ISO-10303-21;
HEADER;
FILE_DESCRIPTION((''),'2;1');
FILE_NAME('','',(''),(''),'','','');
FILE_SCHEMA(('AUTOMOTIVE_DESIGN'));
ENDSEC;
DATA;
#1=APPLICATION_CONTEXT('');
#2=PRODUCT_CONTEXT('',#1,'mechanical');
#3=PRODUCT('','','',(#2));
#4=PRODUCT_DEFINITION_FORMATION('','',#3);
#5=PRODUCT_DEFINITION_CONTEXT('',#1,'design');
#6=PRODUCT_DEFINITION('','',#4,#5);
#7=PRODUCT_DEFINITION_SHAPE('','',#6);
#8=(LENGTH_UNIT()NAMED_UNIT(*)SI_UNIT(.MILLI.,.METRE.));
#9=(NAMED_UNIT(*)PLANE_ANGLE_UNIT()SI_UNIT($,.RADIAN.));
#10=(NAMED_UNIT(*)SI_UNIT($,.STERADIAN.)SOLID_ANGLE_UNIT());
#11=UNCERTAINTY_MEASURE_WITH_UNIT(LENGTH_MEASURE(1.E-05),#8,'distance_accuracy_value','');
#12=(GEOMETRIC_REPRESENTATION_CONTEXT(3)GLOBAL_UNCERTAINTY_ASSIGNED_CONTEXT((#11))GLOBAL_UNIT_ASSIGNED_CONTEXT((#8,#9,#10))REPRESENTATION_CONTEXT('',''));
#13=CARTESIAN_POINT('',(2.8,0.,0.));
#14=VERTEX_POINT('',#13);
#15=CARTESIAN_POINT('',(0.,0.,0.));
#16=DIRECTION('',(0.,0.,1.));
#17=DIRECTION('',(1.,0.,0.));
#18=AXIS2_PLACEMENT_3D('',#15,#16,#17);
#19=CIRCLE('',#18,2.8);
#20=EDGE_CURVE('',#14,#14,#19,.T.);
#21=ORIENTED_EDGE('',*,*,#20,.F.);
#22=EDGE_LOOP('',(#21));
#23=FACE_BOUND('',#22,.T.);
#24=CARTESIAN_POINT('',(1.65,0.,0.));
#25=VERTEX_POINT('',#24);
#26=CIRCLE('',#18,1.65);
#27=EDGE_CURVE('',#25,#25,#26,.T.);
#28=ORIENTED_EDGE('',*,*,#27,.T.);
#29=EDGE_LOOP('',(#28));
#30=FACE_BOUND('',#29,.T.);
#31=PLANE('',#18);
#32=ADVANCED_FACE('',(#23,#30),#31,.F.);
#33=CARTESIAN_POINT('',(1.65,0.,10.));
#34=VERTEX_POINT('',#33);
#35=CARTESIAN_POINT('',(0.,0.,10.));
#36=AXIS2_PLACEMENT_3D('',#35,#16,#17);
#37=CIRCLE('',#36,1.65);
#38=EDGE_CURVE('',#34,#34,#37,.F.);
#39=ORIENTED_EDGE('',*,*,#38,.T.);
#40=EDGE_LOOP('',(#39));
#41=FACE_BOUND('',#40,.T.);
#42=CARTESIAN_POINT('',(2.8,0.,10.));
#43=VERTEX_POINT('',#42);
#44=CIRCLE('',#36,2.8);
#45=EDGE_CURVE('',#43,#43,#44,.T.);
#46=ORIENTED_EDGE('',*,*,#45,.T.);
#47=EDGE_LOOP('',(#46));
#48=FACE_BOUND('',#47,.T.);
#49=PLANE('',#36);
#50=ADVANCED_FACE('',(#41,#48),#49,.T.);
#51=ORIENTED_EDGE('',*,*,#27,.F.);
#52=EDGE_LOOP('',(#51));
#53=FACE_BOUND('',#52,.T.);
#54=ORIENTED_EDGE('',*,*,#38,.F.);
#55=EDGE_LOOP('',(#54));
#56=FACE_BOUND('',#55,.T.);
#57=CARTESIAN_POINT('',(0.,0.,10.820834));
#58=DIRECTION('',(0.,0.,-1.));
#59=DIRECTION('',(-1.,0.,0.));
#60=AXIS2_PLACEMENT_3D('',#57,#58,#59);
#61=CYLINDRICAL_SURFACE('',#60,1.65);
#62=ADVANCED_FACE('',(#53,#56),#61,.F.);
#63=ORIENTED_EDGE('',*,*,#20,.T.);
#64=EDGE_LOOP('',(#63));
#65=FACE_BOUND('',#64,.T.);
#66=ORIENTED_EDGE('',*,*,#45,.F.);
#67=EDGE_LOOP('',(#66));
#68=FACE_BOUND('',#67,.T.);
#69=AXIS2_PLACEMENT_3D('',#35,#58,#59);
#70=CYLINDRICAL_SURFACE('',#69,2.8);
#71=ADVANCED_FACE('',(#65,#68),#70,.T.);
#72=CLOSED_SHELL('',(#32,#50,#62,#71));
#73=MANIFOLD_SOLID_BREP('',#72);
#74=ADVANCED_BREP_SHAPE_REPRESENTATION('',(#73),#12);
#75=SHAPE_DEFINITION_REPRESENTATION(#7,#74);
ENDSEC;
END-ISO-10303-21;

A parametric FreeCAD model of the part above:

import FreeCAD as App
import Part
import Sketcher
from FreeCAD import Vector
Q = App.Units.Quantity

doc = App.newDocument("Part")
body = doc.addObject("PartDesign::Body", "Body")

# Sketch on XY plane
sketch1 = doc.addObject("Sketcher::SketchObject", "Sketch")
body.addObject(sketch1)
sketch1.AttachmentSupport = (doc.XY_Plane, [""])
sketch1.MapMode = "FlatFace"
sketch1.addGeometry(Part.Circle(Vector(0, 0, 0), Vector(0, 0, 1), 2.8), False)
sketch1.addConstraint([
    Sketcher.Constraint("Coincident", 0, 3, -1, 1),
    Sketcher.Constraint("Diameter", 0, Q("5.6 mm")),
])
pad1 = doc.addObject("PartDesign::Pad", "Pad")
body.addObject(pad1)
pad1.Profile = sketch1
pad1.Length = 10

# Sketch on XY plane
sketch2 = doc.addObject("Sketcher::SketchObject", "Sketch001")
body.addObject(sketch2)
sketch2.AttachmentSupport = (doc.XY_Plane, [""])
sketch2.MapMode = "FlatFace"
sketch2.addGeometry(Part.Circle(Vector(0, 0, 0), Vector(0, 0, 1), 1.6), False)
sketch2.addConstraint([
    Sketcher.Constraint("Coincident", 0, 3, -1, 1),
    Sketcher.Constraint("Diameter", 0, Q("3.3 mm")),
])
pocket1 = doc.addObject("PartDesign::Pocket", "Pocket")
body.addObject(pocket1)
pocket1.Profile = sketch2
pocket1.Length = 10.820834
pocket1.Reversed = True

doc.recompute()
